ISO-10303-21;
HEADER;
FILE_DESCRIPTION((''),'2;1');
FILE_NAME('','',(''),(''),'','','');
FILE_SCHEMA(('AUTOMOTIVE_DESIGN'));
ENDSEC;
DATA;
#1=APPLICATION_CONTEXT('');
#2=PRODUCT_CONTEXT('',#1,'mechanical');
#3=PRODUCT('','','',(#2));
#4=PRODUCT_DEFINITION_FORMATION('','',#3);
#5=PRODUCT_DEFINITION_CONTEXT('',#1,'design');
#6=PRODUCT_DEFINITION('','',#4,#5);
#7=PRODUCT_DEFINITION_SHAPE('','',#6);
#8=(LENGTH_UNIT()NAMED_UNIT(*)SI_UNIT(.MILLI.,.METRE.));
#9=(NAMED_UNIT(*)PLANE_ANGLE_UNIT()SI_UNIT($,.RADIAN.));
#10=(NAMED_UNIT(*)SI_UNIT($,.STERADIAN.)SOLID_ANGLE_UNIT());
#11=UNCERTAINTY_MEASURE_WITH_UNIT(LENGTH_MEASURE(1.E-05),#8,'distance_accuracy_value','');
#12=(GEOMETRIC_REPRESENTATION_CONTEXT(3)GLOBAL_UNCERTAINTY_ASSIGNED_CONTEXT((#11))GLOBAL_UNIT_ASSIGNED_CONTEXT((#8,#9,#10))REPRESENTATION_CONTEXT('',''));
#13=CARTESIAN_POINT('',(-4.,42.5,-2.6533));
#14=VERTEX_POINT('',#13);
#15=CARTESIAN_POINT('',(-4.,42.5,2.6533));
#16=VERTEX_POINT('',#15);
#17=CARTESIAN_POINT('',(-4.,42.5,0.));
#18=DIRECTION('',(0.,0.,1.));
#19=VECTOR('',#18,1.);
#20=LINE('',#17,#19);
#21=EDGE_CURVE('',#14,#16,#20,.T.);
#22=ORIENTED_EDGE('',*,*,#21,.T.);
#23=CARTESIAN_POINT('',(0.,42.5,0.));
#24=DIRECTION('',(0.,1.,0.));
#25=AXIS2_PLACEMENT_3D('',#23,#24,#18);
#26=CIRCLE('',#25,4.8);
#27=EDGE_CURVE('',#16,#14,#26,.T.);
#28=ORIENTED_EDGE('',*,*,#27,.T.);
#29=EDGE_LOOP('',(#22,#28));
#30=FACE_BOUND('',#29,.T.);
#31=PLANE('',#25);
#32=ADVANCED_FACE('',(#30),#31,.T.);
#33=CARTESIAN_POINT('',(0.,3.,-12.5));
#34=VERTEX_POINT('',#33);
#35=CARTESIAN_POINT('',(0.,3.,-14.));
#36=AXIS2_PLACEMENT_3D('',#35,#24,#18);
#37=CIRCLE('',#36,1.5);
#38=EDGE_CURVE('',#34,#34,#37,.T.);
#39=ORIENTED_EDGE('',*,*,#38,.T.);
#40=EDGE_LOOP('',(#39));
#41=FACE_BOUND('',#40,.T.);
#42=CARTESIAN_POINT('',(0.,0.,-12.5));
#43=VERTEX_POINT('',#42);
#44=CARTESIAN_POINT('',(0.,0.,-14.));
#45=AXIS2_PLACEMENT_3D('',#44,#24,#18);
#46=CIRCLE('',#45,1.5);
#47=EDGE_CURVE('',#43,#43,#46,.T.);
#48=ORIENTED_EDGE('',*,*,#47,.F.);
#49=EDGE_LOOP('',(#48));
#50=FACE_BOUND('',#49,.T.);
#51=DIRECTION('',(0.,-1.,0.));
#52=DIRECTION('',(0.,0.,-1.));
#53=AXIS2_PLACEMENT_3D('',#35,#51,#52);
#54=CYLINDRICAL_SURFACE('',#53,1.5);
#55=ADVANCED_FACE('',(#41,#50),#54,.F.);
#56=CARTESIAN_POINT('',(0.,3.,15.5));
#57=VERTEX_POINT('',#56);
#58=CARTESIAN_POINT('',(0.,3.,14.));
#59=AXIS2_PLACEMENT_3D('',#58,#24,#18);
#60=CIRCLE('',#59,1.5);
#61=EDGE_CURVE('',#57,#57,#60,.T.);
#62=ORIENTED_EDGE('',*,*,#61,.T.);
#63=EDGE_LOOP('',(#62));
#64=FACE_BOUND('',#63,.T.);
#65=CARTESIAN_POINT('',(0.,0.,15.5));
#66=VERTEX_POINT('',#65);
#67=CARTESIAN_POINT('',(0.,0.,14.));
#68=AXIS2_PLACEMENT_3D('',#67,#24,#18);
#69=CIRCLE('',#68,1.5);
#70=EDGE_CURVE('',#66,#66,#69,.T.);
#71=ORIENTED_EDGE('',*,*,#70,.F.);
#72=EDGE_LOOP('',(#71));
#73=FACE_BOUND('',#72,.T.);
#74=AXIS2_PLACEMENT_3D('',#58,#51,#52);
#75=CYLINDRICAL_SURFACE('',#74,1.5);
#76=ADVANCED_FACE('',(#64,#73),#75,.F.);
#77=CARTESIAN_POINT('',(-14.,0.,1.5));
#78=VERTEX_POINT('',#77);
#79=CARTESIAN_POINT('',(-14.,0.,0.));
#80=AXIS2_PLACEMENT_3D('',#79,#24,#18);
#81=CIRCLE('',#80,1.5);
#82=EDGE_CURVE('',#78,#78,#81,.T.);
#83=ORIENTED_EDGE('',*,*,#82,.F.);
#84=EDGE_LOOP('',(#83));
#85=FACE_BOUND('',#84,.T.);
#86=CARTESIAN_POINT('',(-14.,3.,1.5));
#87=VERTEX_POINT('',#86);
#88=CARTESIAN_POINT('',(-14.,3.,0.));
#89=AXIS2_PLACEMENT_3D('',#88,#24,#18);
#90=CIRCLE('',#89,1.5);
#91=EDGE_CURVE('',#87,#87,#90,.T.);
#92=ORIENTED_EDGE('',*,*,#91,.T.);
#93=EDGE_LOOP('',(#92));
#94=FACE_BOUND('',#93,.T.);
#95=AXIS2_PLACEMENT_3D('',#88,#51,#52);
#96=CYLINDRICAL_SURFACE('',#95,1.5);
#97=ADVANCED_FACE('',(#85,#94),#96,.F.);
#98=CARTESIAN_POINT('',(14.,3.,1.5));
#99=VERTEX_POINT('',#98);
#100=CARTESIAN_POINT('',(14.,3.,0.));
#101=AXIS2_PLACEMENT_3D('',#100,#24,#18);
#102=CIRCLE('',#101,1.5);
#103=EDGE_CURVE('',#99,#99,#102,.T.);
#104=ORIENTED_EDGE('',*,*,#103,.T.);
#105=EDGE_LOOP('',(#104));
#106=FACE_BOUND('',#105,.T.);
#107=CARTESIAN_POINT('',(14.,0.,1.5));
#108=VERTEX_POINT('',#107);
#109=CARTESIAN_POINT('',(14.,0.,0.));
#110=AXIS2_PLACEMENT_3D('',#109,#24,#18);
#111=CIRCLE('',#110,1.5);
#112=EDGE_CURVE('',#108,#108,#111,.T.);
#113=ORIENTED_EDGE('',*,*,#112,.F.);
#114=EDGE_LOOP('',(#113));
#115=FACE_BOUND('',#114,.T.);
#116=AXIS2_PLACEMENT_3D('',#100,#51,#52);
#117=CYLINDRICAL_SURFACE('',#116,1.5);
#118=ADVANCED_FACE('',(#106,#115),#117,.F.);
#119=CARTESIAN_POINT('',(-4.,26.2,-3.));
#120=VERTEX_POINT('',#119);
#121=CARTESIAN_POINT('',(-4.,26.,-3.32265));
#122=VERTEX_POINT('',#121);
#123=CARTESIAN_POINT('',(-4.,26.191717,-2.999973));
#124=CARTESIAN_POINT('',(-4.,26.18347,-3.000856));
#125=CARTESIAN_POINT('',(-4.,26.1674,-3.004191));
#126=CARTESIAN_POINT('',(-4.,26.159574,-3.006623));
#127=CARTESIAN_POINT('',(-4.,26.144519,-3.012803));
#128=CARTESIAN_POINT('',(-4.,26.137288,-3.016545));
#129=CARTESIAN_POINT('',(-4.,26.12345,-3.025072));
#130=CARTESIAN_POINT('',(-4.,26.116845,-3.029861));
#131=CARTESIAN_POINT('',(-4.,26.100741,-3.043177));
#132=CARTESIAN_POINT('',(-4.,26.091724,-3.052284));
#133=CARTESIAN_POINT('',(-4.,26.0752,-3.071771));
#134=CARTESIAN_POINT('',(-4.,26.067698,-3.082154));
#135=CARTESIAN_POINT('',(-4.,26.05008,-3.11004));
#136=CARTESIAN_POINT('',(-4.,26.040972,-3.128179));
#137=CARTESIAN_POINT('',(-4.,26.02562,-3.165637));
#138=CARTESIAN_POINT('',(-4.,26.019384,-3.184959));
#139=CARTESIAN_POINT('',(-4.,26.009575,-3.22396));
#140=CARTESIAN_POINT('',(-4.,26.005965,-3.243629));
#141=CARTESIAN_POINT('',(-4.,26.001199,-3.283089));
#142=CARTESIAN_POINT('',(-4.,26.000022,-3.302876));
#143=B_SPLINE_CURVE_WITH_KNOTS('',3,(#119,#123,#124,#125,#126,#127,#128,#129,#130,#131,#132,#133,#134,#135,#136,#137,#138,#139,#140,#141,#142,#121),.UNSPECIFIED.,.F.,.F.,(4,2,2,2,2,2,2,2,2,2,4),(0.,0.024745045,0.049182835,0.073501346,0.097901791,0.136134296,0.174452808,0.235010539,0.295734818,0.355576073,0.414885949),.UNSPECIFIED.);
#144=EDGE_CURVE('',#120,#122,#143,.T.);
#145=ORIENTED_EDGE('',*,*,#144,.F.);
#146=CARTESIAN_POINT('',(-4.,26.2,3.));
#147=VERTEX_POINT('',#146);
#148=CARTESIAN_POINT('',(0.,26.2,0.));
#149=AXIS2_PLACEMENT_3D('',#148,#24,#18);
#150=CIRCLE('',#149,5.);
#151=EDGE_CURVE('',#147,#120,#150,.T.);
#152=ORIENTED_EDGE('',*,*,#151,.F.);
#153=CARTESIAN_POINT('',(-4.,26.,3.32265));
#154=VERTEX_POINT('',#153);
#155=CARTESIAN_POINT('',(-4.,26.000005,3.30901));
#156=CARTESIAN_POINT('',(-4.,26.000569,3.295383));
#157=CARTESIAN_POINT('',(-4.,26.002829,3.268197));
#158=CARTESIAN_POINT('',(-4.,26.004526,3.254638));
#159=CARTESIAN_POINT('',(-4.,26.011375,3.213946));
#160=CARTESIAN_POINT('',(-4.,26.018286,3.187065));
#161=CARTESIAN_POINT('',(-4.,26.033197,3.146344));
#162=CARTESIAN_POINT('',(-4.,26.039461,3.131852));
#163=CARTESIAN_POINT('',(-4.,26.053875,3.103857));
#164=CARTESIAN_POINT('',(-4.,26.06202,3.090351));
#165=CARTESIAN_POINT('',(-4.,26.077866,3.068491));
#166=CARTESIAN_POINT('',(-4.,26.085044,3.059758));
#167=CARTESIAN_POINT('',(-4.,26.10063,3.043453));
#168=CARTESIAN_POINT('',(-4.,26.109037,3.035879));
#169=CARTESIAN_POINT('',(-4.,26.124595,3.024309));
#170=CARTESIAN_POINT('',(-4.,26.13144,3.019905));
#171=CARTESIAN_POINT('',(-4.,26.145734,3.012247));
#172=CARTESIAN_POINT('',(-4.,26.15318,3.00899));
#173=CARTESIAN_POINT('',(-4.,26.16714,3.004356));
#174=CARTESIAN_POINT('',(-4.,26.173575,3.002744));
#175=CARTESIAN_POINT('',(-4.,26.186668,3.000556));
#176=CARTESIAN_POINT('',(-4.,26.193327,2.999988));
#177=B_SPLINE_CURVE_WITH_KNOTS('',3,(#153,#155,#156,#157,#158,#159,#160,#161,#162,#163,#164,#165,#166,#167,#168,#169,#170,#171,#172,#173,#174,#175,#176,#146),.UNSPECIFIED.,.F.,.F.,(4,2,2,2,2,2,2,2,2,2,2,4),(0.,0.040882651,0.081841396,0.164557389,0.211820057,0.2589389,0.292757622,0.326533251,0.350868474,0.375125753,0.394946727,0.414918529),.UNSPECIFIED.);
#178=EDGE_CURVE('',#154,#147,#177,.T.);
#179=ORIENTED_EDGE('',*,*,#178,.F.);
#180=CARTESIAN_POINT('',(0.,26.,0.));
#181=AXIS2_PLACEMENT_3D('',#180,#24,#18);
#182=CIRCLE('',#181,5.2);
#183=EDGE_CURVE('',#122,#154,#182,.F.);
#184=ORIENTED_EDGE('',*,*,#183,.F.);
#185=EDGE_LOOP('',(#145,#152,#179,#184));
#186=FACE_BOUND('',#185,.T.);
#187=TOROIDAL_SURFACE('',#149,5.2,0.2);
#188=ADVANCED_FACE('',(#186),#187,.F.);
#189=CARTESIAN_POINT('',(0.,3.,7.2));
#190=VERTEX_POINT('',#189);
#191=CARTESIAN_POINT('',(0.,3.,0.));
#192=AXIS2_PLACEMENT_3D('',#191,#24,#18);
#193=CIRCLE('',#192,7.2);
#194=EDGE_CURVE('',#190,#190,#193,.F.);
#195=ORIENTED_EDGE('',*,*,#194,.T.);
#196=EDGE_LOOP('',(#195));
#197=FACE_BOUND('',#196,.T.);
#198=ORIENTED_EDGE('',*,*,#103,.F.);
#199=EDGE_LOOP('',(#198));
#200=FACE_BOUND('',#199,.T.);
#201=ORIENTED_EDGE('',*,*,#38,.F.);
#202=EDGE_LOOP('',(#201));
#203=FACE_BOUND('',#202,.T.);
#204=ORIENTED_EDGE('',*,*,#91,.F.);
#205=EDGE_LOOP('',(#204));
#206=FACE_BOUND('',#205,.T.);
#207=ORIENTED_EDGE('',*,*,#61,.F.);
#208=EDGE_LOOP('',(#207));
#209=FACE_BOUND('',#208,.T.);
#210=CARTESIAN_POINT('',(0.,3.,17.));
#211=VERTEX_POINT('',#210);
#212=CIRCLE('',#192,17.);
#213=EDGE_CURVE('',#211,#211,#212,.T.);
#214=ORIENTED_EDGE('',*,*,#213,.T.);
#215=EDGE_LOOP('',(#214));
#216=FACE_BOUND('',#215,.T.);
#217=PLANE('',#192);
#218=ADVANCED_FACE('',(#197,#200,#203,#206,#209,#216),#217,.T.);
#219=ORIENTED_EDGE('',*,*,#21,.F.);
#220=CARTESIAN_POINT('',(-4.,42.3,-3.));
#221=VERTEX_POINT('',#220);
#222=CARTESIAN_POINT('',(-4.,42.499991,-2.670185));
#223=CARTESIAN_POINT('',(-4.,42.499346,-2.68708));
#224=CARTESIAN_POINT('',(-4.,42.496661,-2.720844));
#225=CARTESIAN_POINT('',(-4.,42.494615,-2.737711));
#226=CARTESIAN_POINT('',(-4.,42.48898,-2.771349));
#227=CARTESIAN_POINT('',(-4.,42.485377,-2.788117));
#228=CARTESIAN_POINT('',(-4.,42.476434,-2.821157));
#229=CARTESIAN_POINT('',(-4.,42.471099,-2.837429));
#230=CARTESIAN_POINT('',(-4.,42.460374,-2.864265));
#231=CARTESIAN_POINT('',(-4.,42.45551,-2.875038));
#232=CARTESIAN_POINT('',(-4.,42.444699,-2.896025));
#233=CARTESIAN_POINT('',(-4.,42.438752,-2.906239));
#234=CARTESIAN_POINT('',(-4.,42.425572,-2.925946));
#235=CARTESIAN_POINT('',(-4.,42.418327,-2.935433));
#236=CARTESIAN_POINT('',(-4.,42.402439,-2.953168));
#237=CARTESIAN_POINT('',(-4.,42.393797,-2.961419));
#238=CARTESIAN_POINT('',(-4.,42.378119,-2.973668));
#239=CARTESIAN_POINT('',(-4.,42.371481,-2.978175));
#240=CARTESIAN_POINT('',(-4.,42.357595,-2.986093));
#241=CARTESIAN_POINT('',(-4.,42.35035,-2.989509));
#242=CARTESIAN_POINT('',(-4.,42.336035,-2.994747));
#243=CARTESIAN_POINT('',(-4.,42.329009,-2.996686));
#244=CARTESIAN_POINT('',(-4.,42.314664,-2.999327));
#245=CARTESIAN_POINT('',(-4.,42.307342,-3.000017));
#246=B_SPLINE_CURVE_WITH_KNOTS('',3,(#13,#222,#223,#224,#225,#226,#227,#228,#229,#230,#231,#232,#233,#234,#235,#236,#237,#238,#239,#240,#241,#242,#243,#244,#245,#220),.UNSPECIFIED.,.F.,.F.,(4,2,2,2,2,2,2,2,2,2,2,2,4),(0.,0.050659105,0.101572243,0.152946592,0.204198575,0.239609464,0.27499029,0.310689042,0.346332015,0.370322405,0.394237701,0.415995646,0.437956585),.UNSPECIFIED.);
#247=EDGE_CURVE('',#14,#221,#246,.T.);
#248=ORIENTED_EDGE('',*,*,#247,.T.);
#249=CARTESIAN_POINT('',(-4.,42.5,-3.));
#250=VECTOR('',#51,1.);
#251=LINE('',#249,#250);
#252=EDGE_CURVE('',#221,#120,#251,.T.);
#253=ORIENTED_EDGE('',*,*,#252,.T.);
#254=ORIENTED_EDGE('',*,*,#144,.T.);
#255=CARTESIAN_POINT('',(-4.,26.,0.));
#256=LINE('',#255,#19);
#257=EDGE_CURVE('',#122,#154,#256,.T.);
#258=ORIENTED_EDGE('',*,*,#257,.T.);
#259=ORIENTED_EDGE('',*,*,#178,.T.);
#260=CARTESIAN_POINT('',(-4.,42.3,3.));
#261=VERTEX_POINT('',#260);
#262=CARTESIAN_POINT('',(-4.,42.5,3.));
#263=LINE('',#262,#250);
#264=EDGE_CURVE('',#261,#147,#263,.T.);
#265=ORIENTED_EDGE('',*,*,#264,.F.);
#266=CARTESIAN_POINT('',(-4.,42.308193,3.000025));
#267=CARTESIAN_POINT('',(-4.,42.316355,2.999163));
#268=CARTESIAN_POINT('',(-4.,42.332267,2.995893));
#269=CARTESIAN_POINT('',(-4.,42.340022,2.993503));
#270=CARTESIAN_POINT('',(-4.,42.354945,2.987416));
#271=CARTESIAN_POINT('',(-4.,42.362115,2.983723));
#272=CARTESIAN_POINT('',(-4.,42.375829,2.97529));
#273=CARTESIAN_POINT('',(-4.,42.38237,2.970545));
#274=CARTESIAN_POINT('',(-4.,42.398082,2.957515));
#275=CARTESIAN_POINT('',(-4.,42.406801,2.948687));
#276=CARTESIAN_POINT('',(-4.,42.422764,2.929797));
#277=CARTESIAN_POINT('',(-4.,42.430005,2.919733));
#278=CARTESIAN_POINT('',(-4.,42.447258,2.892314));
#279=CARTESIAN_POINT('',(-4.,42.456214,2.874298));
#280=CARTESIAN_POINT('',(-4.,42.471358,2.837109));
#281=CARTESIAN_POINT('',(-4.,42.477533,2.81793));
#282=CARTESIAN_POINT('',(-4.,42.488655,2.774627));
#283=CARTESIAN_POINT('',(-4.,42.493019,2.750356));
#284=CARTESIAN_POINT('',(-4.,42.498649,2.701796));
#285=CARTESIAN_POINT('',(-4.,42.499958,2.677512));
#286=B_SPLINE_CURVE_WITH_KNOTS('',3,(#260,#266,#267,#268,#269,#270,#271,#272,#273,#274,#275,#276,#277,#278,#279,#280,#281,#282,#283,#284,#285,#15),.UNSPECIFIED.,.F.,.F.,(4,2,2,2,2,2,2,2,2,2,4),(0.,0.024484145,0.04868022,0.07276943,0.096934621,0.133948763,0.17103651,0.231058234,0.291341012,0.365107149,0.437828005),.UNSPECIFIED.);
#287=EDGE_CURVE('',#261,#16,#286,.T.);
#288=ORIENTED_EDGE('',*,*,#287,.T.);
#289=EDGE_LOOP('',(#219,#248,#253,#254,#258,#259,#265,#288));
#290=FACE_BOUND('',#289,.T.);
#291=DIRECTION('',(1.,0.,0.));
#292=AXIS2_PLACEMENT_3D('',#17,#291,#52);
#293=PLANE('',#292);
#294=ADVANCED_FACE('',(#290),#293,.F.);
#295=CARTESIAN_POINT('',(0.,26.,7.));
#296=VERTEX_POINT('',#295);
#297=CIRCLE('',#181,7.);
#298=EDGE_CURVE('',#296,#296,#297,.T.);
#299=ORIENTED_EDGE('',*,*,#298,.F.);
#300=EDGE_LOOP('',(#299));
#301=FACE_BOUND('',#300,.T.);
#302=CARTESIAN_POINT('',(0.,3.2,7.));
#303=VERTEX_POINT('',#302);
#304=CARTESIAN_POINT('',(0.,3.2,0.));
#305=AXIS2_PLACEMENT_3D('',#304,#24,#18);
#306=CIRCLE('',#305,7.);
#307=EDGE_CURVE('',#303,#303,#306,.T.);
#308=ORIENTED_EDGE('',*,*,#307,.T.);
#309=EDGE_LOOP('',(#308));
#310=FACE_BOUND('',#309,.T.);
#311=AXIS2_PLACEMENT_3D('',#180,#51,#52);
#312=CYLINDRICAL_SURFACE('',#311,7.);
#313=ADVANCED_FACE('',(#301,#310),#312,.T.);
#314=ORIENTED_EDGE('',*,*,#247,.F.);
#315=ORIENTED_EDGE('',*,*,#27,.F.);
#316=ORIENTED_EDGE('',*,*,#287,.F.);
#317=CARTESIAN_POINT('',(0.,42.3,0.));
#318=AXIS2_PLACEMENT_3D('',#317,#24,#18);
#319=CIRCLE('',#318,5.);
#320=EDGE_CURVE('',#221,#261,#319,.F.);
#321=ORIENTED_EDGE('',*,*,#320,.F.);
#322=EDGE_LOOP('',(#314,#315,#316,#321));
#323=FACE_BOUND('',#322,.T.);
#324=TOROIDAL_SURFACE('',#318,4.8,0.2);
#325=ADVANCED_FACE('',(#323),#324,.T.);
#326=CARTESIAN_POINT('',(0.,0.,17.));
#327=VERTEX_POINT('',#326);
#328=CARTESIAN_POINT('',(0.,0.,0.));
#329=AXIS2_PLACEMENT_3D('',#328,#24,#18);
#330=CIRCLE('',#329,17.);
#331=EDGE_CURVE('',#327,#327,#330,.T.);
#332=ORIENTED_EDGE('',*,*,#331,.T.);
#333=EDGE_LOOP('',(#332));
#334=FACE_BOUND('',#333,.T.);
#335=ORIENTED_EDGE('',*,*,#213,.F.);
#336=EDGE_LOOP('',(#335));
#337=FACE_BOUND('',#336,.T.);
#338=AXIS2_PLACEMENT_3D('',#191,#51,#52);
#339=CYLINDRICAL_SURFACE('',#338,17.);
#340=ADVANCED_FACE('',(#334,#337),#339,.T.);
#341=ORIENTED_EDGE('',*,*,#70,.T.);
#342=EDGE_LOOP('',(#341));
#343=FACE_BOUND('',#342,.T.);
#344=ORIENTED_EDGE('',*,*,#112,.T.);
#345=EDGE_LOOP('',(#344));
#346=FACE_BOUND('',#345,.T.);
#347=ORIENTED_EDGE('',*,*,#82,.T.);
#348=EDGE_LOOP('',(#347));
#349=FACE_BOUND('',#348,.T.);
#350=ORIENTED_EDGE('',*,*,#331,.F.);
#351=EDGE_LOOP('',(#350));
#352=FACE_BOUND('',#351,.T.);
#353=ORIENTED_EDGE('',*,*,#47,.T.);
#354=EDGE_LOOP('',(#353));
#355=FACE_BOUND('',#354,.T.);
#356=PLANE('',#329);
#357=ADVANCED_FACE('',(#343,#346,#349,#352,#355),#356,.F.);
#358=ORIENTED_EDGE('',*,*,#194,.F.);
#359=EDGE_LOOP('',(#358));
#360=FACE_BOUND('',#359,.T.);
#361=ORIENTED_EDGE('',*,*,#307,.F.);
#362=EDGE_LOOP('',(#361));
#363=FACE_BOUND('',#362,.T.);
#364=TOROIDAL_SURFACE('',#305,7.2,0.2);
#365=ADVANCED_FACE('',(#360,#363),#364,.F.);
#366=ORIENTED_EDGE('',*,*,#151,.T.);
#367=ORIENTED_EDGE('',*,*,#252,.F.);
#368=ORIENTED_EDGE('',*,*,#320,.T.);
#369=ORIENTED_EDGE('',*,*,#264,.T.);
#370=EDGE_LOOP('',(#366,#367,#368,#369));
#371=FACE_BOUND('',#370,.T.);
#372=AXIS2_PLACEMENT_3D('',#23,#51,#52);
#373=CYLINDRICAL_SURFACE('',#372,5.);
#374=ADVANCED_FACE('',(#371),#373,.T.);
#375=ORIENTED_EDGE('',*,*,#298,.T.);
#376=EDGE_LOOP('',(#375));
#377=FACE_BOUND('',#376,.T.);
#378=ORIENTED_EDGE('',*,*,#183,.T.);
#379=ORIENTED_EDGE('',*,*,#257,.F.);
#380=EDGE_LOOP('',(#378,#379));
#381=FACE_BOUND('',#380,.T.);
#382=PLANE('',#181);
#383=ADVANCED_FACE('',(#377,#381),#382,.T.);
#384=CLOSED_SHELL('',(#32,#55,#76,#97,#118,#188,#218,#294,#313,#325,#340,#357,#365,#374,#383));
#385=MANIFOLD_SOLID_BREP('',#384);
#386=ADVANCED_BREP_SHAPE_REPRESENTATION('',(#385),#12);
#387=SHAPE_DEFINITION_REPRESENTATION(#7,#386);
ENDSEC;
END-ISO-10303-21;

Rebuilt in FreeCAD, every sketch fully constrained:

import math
import FreeCAD as App
import Part
import Sketcher
from FreeCAD import Vector
Q = App.Units.Quantity


def edges_at(feature, points):
    """Names of the edges that pass closest to the given points."""
    edges = feature.Shape.Edges
    near = lambda p: min(range(len(edges)), key=lambda i: edges[i].distToShape(Part.Vertex(*p))[0])
    return sorted({f"Edge{near(p) + 1}" for p in points})

doc = App.newDocument("Part")
body = doc.addObject("PartDesign::Body", "Body")

sketch1 = body.newObject("Sketcher::SketchObject", "Sketch")
sketch1.AttachmentSupport = (doc.getObject("XZ_Plane"), [""])
sketch1.MapMode = "FlatFace"
sketch1.addGeometry(Part.Circle(Vector(0, 0, 0), Vector(0, 0, 1), 17), False)
sketch1.addGeometry(Part.Circle(Vector(0, -14, 0), Vector(0, 0, 1), 1.5), False)
sketch1.addGeometry(Part.Circle(Vector(-14, 0, 0), Vector(0, 0, 1), 1.5), False)
sketch1.addGeometry(Part.Circle(Vector(14, 0, 0), Vector(0, 0, 1), 1.5), False)
sketch1.addGeometry(Part.Circle(Vector(0, 14, 0), Vector(0, 0, 1), 1.5), False)
sketch1.addConstraint(Sketcher.Constraint("Coincident", 0, 3, -1, 1))
sketch1.addConstraint(Sketcher.Constraint("Equal", 1, 2))
sketch1.addConstraint(Sketcher.Constraint("Equal", 2, 3))
sketch1.addConstraint(Sketcher.Constraint("Equal", 3, 4))
sketch1.addConstraint(Sketcher.Constraint("Symmetric", 2, 3, 3, 3, -1, 1))
sketch1.addConstraint(Sketcher.Constraint("Symmetric", 1, 3, 4, 3, -1, 1))
sketch1.addConstraint(Sketcher.Constraint("PointOnObject", 1, 3, -2))
sketch1.addConstraint(Sketcher.Constraint("PointOnObject", 2, 3, -1))
sketch1.addConstraint(Sketcher.Constraint("Diameter", 0, Q("34 mm")))
sketch1.addConstraint(Sketcher.Constraint("Diameter", 1, Q("3 mm")))
sketch1.addConstraint(Sketcher.Constraint("DistanceY", 1, 3, -1, 1, Q("14 mm")))
sketch1.addConstraint(Sketcher.Constraint("DistanceX", 2, 3, -1, 1, Q("14 mm")))
pad1 = body.newObject("PartDesign::Pad", "Pad")
pad1.Profile = sketch1
pad1.Length = 3
pad1.Reversed = True

sketch2 = body.newObject("Sketcher::SketchObject", "Sketch001")
sketch2.AttachmentSupport = (doc.getObject("XZ_Plane"), [""])
sketch2.MapMode = "FlatFace"
sketch2.AttachmentOffset = App.Placement(Vector(0, 0, -3), App.Rotation())
sketch2.addGeometry(Part.Circle(Vector(0, 0, 0), Vector(0, 0, 1), 7), False)
sketch2.addConstraint(Sketcher.Constraint("Coincident", 0, 3, -1, 1))
sketch2.addConstraint(Sketcher.Constraint("Diameter", 0, Q("14 mm")))
pad2 = body.newObject("PartDesign::Pad", "Pad001")
pad2.Profile = sketch2
pad2.Length = 23
pad2.Reversed = True

sketch3 = body.newObject("Sketcher::SketchObject", "Sketch002")
sketch3.AttachmentSupport = (doc.getObject("XZ_Plane"), [""])
sketch3.MapMode = "FlatFace"
sketch3.AttachmentOffset = App.Placement(Vector(0, 0, -26), App.Rotation())
sketch3.addGeometry(Part.ArcOfCircle(Part.Circle(Vector(0, 0, 0), Vector(0, 0, 1), 5), math.radians(-143), math.radians(143)), False)
sketch3.addGeometry(Part.LineSegment(Vector(-4, -3, 0), Vector(-4, 3, 0)), False)
sketch3.addConstraint(Sketcher.Constraint("Coincident", 0, 1, 1, 1))
sketch3.addConstraint(Sketcher.Constraint("Coincident", 1, 2, 0, 2))
sketch3.addConstraint(Sketcher.Constraint("Vertical", 1))
sketch3.addConstraint(Sketcher.Constraint("Coincident", 0, 3, -1, 1))
sketch3.addConstraint(Sketcher.Constraint("Radius", 0, Q("5 mm")))
sketch3.addConstraint(Sketcher.Constraint("DistanceY", 1, 1, 1, 2, Q("6 mm")))
pad3 = body.newObject("PartDesign::Pad", "Pad002")
pad3.Profile = sketch3
pad3.Length = 16.5
pad3.Reversed = True
doc.recompute()

fillet = body.newObject("PartDesign::Fillet", "Fillet")
fillet.Base = (pad3, edges_at(pad3, [(0, 3, -7), (5, 26, 0), (5, 42.5, 0)]))
fillet.Radius = 0.2

doc.recompute()
